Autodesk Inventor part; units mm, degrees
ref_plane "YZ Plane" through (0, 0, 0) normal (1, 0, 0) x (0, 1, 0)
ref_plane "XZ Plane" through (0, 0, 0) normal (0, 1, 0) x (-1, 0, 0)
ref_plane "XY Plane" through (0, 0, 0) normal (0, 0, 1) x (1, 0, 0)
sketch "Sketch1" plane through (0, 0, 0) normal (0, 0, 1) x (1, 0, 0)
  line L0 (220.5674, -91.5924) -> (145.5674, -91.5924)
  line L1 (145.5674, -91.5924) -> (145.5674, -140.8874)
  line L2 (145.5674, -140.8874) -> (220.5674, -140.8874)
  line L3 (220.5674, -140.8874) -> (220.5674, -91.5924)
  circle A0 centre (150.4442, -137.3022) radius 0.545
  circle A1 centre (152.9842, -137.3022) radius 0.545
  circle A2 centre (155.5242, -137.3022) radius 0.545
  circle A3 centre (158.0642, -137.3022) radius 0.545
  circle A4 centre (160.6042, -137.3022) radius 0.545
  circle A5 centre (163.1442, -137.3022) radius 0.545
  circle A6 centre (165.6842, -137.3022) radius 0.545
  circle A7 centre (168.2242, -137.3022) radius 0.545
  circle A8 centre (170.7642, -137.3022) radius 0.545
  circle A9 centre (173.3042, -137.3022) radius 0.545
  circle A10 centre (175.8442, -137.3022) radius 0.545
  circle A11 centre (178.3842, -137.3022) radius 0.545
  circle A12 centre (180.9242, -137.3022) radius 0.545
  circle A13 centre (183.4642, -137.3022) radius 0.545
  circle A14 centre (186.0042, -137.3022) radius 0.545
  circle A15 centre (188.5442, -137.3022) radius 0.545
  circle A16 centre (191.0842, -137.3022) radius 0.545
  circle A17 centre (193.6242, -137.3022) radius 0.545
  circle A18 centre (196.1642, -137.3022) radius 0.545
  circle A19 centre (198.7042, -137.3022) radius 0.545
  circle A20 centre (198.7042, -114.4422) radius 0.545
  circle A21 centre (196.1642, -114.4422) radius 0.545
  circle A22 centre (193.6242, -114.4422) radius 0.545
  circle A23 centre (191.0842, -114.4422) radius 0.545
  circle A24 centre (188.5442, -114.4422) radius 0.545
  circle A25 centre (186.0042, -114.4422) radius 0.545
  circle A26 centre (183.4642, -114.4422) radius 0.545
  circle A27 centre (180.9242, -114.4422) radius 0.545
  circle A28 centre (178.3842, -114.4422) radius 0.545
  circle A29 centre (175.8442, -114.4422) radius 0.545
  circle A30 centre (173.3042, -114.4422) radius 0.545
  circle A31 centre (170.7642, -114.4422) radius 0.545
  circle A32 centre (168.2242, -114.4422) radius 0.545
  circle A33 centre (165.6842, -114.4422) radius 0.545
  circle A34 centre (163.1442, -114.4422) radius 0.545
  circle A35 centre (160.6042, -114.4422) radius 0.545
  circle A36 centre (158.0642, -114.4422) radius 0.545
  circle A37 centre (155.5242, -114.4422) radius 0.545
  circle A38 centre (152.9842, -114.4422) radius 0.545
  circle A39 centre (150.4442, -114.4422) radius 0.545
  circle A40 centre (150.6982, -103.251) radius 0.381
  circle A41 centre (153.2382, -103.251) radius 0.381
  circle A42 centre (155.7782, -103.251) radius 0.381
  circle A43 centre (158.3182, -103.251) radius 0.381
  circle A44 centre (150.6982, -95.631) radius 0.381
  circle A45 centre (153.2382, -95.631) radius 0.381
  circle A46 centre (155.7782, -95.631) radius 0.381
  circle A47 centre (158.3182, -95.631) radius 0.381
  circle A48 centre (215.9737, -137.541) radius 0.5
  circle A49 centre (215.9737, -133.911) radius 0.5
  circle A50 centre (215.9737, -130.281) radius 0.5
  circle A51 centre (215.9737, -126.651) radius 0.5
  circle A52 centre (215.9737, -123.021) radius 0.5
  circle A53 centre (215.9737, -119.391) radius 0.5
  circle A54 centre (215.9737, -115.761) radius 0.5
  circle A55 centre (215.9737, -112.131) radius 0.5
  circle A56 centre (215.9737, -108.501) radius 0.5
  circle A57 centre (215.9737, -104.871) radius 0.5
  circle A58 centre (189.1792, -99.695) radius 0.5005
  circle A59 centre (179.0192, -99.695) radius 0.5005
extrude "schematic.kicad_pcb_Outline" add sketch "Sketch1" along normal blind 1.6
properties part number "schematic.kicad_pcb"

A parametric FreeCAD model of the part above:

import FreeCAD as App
import Part
import Sketcher

V = App.Vector
Q = App.Units.Quantity

doc = App.newDocument("Part")
params = doc.addObject("Spreadsheet::Sheet", "Params")
for row, (alias, value) in enumerate([
    ("sketch1_diameter", "1 mm"),
    ("sketch1_diameter2", "1.09 mm"),
    ("sketch1_width", "75 mm"),
    ("pad1_length", "1.6 mm"),
], start=1):
    params.set(f"A{row}", alias)
    params.set(f"B{row}", "=" + value)
    params.setAlias(f"B{row}", alias)

body = doc.addObject("PartDesign::Body", "Body")

# Sketch on XY plane
sketch1 = doc.addObject("Sketcher::SketchObject", "Sketch")
body.addObject(sketch1)
sketch1.AttachmentSupport = (doc.XY_Plane, [""])
sketch1.MapMode = "FlatFace"
sketch1.addGeometry([
    Part.LineSegment(V(220.57, -140.89, 0), V(220.57, -91.59, 0)),  # 0
    Part.LineSegment(V(220.57, -91.59, 0), V(145.57, -91.59, 0)),  # 1
    Part.LineSegment(V(145.57, -91.59, 0), V(145.57, -140.89, 0)),  # 2
    Part.LineSegment(V(145.57, -140.89, 0), V(220.57, -140.89, 0)),  # 3
    Part.Circle(V(150.44, -137.3, 0), V(0, 0, 1), 0.55),  # 4
    Part.Circle(V(152.98, -137.3, 0), V(0, 0, 1), 0.55),  # 5
    Part.Circle(V(155.52, -137.3, 0), V(0, 0, 1), 0.55),  # 6
    Part.Circle(V(158.06, -137.3, 0), V(0, 0, 1), 0.55),  # 7
    Part.Circle(V(160.6, -137.3, 0), V(0, 0, 1), 0.55),  # 8
    Part.Circle(V(163.14, -137.3, 0), V(0, 0, 1), 0.55),  # 9
    Part.Circle(V(165.68, -137.3, 0), V(0, 0, 1), 0.55),  # 10
    Part.Circle(V(168.22, -137.3, 0), V(0, 0, 1), 0.55),  # 11
    Part.Circle(V(170.76, -137.3, 0), V(0, 0, 1), 0.55),  # 12
    Part.Circle(V(173.3, -137.3, 0), V(0, 0, 1), 0.55),  # 13
    Part.Circle(V(175.84, -137.3, 0), V(0, 0, 1), 0.55),  # 14
    Part.Circle(V(178.38, -137.3, 0), V(0, 0, 1), 0.55),  # 15
    Part.Circle(V(180.92, -137.3, 0), V(0, 0, 1), 0.55),  # 16
    Part.Circle(V(183.46, -137.3, 0), V(0, 0, 1), 0.55),  # 17
    Part.Circle(V(186, -137.3, 0), V(0, 0, 1), 0.55),  # 18
    Part.Circle(V(188.54, -137.3, 0), V(0, 0, 1), 0.55),  # 19
    Part.Circle(V(191.08, -137.3, 0), V(0, 0, 1), 0.55),  # 20
    Part.Circle(V(193.62, -137.3, 0), V(0, 0, 1), 0.55),  # 21
    Part.Circle(V(196.16, -137.3, 0), V(0, 0, 1), 0.55),  # 22
    Part.Circle(V(198.7, -137.3, 0), V(0, 0, 1), 0.55),  # 23
    Part.Circle(V(215.97, -137.54, 0), V(0, 0, 1), 0.5),  # 24
    Part.Circle(V(215.97, -133.91, 0), V(0, 0, 1), 0.5),  # 25
    Part.Circle(V(215.97, -130.28, 0), V(0, 0, 1), 0.5),  # 26
    Part.Circle(V(215.97, -126.65, 0), V(0, 0, 1), 0.5),  # 27
    Part.Circle(V(215.97, -123.02, 0), V(0, 0, 1), 0.5),  # 28
    Part.Circle(V(215.97, -119.39, 0), V(0, 0, 1), 0.5),  # 29
    Part.Circle(V(150.44, -114.44, 0), V(0, 0, 1), 0.55),  # 30
    Part.Circle(V(152.98, -114.44, 0), V(0, 0, 1), 0.55),  # 31
    Part.Circle(V(155.52, -114.44, 0), V(0, 0, 1), 0.55),  # 32
    Part.Circle(V(158.06, -114.44, 0), V(0, 0, 1), 0.55),  # 33
    Part.Circle(V(160.6, -114.44, 0), V(0, 0, 1), 0.55),  # 34
    Part.Circle(V(163.14, -114.44, 0), V(0, 0, 1), 0.55),  # 35
    Part.Circle(V(165.68, -114.44, 0), V(0, 0, 1), 0.55),  # 36
    Part.Circle(V(168.22, -114.44, 0), V(0, 0, 1), 0.55),  # 37
    Part.Circle(V(170.76, -114.44, 0), V(0, 0, 1), 0.55),  # 38
    Part.Circle(V(173.3, -114.44, 0), V(0, 0, 1), 0.55),  # 39
    Part.Circle(V(175.84, -114.44, 0), V(0, 0, 1), 0.55),  # 40
    Part.Circle(V(178.38, -114.44, 0), V(0, 0, 1), 0.55),  # 41
    Part.Circle(V(180.92, -114.44, 0), V(0, 0, 1), 0.55),  # 42
    Part.Circle(V(150.7, -103.25, 0), V(0, 0, 1), 0.38),  # 43
    Part.Circle(V(153.24, -103.25, 0), V(0, 0, 1), 0.38),  # 44
    Part.Circle(V(155.78, -103.25, 0), V(0, 0, 1), 0.38),  # 45
    Part.Circle(V(158.32, -103.25, 0), V(0, 0, 1), 0.38),  # 46
    Part.Circle(V(150.7, -95.63, 0), V(0, 0, 1), 0.38),  # 47
    Part.Circle(V(153.24, -95.63, 0), V(0, 0, 1), 0.38),  # 48
    Part.Circle(V(155.78, -95.63, 0), V(0, 0, 1), 0.38),  # 49
    Part.Circle(V(158.32, -95.63, 0), V(0, 0, 1), 0.38),  # 50
    Part.Circle(V(179.02, -99.69, 0), V(0, 0, 1), 0.5),  # 51
    Part.Circle(V(183.46, -114.44, 0), V(0, 0, 1), 0.55),  # 52
    Part.Circle(V(186, -114.44, 0), V(0, 0, 1), 0.55),  # 53
    Part.Circle(V(188.54, -114.44, 0), V(0, 0, 1), 0.55),  # 54
    Part.Circle(V(191.08, -114.44, 0), V(0, 0, 1), 0.55),  # 55
    Part.Circle(V(193.62, -114.44, 0), V(0, 0, 1), 0.55),  # 56
    Part.Circle(V(196.16, -114.44, 0), V(0, 0, 1), 0.55),  # 57
    Part.Circle(V(198.7, -114.44, 0), V(0, 0, 1), 0.55),  # 58
    Part.Circle(V(215.97, -115.76, 0), V(0, 0, 1), 0.5),  # 59
    Part.Circle(V(215.97, -112.13, 0), V(0, 0, 1), 0.5),  # 60
    Part.Circle(V(215.97, -108.5, 0), V(0, 0, 1), 0.5),  # 61
    Part.Circle(V(215.97, -104.87, 0), V(0, 0, 1), 0.5),  # 62
    Part.Circle(V(189.18, -99.69, 0), V(0, 0, 1), 0.5),  # 63
], False)
sketch1.addConstraint([
    Sketcher.Constraint("Coincident", 0, 2, 1, 1),
    Sketcher.Constraint("Coincident", 1, 2, 2, 1),
    Sketcher.Constraint("Coincident", 2, 2, 3, 1),
    Sketcher.Constraint("Coincident", 3, 2, 0, 1),
    Sketcher.Constraint("Vertical", 0),
    Sketcher.Constraint("Horizontal", 1),
    Sketcher.Constraint("Vertical", 2),
    Sketcher.Constraint("Horizontal", 3),
    Sketcher.Constraint("Equal", 4, 5),
    Sketcher.Constraint("Equal", 5, 6),
    Sketcher.Constraint("Equal", 6, 7),
    Sketcher.Constraint("Equal", 7, 8),
    Sketcher.Constraint("Equal", 8, 9),
    Sketcher.Constraint("Equal", 9, 10),
    Sketcher.Constraint("Equal", 10, 11),
    Sketcher.Constraint("Equal", 11, 12),
    Sketcher.Constraint("Equal", 12, 13),
    Sketcher.Constraint("Equal", 13, 14),
    Sketcher.Constraint("Equal", 14, 15),
    Sketcher.Constraint("Equal", 15, 16),
    Sketcher.Constraint("Equal", 16, 17),
    Sketcher.Constraint("Equal", 17, 18),
    Sketcher.Constraint("Equal", 18, 19),
    Sketcher.Constraint("Equal", 19, 20),
    Sketcher.Constraint("Equal", 20, 21),
    Sketcher.Constraint("Equal", 21, 22),
    Sketcher.Constraint("Equal", 22, 23),
    Sketcher.Constraint("Equal", 24, 25),
    Sketcher.Constraint("Equal", 25, 26),
    Sketcher.Constraint("Equal", 26, 27),
    Sketcher.Constraint("Equal", 27, 28),
    Sketcher.Constraint("Equal", 28, 29),
    Sketcher.Constraint("Equal", 23, 30),
    Sketcher.Constraint("Equal", 30, 31),
    Sketcher.Constraint("Equal", 31, 32),
    Sketcher.Constraint("Equal", 32, 33),
    Sketcher.Constraint("Equal", 33, 34),
    Sketcher.Constraint("Equal", 34, 35),
    Sketcher.Constraint("Equal", 35, 36),
    Sketcher.Constraint("Equal", 36, 37),
    Sketcher.Constraint("Equal", 37, 38),
    Sketcher.Constraint("Equal", 38, 39),
    Sketcher.Constraint("Equal", 39, 40),
    Sketcher.Constraint("Equal", 40, 41),
    Sketcher.Constraint("Equal", 41, 42),
    Sketcher.Constraint("Equal", 43, 44),
    Sketcher.Constraint("Equal", 44, 45),
    Sketcher.Constraint("Equal", 45, 46),
    Sketcher.Constraint("Equal", 46, 47),
    Sketcher.Constraint("Equal", 47, 48),
    Sketcher.Constraint("Equal", 48, 49),
    Sketcher.Constraint("Equal", 49, 50),
    Sketcher.Constraint("Equal", 42, 52),
    Sketcher.Constraint("Equal", 52, 53),
    Sketcher.Constraint("Equal", 53, 54),
    Sketcher.Constraint("Equal", 54, 55),
    Sketcher.Constraint("Equal", 55, 56),
    Sketcher.Constraint("Equal", 56, 57),
    Sketcher.Constraint("Equal", 57, 58),
    Sketcher.Constraint("Equal", 29, 59),
    Sketcher.Constraint("Equal", 59, 60),
    Sketcher.Constraint("Equal", 60, 61),
    Sketcher.Constraint("Equal", 61, 62),
    Sketcher.Constraint("Equal", 51, 63),
    Sketcher.Constraint("Horizontal", 4, 3, 5, 3),
    Sketcher.Constraint("Horizontal", 5, 3, 6, 3),
    Sketcher.Constraint("Horizontal", 6, 3, 7, 3),
    Sketcher.Constraint("Horizontal", 7, 3, 8, 3),
    Sketcher.Constraint("Horizontal", 8, 3, 9, 3),
    Sketcher.Constraint("Horizontal", 9, 3, 10, 3),
    Sketcher.Constraint("Horizontal", 10, 3, 11, 3),
    Sketcher.Constraint("Horizontal", 11, 3, 12, 3),
    Sketcher.Constraint("Horizontal", 12, 3, 13, 3),
    Sketcher.Constraint("Horizontal", 13, 3, 14, 3),
    Sketcher.Constraint("Horizontal", 14, 3, 15, 3),
    Sketcher.Constraint("Horizontal", 15, 3, 16, 3),
    Sketcher.Constraint("Horizontal", 16, 3, 17, 3),
    Sketcher.Constraint("Horizontal", 17, 3, 18, 3),
    Sketcher.Constraint("Horizontal", 18, 3, 19, 3),
    Sketcher.Constraint("Horizontal", 19, 3, 20, 3),
    Sketcher.Constraint("Horizontal", 20, 3, 21, 3),
    Sketcher.Constraint("Horizontal", 21, 3, 22, 3),
    Sketcher.Constraint("Horizontal", 22, 3, 23, 3),
    Sketcher.Constraint("Horizontal", 30, 3, 31, 3),
    Sketcher.Constraint("Horizontal", 31, 3, 32, 3),
    Sketcher.Constraint("Horizontal", 32, 3, 33, 3),
    Sketcher.Constraint("Horizontal", 33, 3, 34, 3),
    Sketcher.Constraint("Horizontal", 34, 3, 35, 3),
    Sketcher.Constraint("Horizontal", 35, 3, 36, 3),
    Sketcher.Constraint("Horizontal", 36, 3, 37, 3),
    Sketcher.Constraint("Horizontal", 37, 3, 38, 3),
    Sketcher.Constraint("Horizontal", 38, 3, 39, 3),
    Sketcher.Constraint("Horizontal", 39, 3, 40, 3),
    Sketcher.Constraint("Horizontal", 40, 3, 41, 3),
    Sketcher.Constraint("Horizontal", 41, 3, 42, 3),
    Sketcher.Constraint("Horizontal", 43, 3, 44, 3),
    Sketcher.Constraint("Horizontal", 44, 3, 45, 3),
    Sketcher.Constraint("Horizontal", 45, 3, 46, 3),
    Sketcher.Constraint("Horizontal", 47, 3, 48, 3),
    Sketcher.Constraint("Horizontal", 48, 3, 49, 3),
    Sketcher.Constraint("Horizontal", 49, 3, 50, 3),
    Sketcher.Constraint("Horizontal", 42, 3, 52, 3),
    Sketcher.Constraint("Horizontal", 52, 3, 53, 3),
    Sketcher.Constraint("Horizontal", 53, 3, 54, 3),
    Sketcher.Constraint("Horizontal", 54, 3, 55, 3),
    Sketcher.Constraint("Horizontal", 55, 3, 56, 3),
    Sketcher.Constraint("Horizontal", 56, 3, 57, 3),
    Sketcher.Constraint("Horizontal", 57, 3, 58, 3),
    Sketcher.Constraint("Horizontal", 51, 3, 63, 3),
    Sketcher.Constraint("Vertical", 24, 3, 25, 3),
    Sketcher.Constraint("Vertical", 25, 3, 26, 3),
    Sketcher.Constraint("Vertical", 26, 3, 27, 3),
    Sketcher.Constraint("Vertical", 27, 3, 28, 3),
    Sketcher.Constraint("Vertical", 28, 3, 29, 3),
    Sketcher.Constraint("Vertical", 4, 3, 30, 3),
    Sketcher.Constraint("Vertical", 5, 3, 31, 3),
    Sketcher.Constraint("Vertical", 6, 3, 32, 3),
    Sketcher.Constraint("Vertical", 7, 3, 33, 3),
    Sketcher.Constraint("Vertical", 8, 3, 34, 3),
    Sketcher.Constraint("Vertical", 9, 3, 35, 3),
    Sketcher.Constraint("Vertical", 10, 3, 36, 3),
    Sketcher.Constraint("Vertical", 11, 3, 37, 3),
    Sketcher.Constraint("Vertical", 12, 3, 38, 3),
    Sketcher.Constraint("Vertical", 13, 3, 39, 3),
    Sketcher.Constraint("Vertical", 14, 3, 40, 3),
    Sketcher.Constraint("Vertical", 15, 3, 41, 3),
    Sketcher.Constraint("Vertical", 16, 3, 42, 3),
    Sketcher.Constraint("Vertical", 43, 3, 47, 3),
    Sketcher.Constraint("Vertical", 44, 3, 48, 3),
    Sketcher.Constraint("Vertical", 45, 3, 49, 3),
    Sketcher.Constraint("Vertical", 46, 3, 50, 3),
    Sketcher.Constraint("Vertical", 17, 3, 52, 3),
    Sketcher.Constraint("Vertical", 18, 3, 53, 3),
    Sketcher.Constraint("Vertical", 19, 3, 54, 3),
    Sketcher.Constraint("Vertical", 20, 3, 55, 3),
    Sketcher.Constraint("Vertical", 21, 3, 56, 3),
    Sketcher.Constraint("Vertical", 22, 3, 57, 3),
    Sketcher.Constraint("Vertical", 23, 3, 58, 3),
    Sketcher.Constraint("Vertical", 29, 3, 59, 3),
    Sketcher.Constraint("Vertical", 59, 3, 60, 3),
    Sketcher.Constraint("Vertical", 60, 3, 61, 3),
    Sketcher.Constraint("Vertical", 61, 3, 62, 3),
    Sketcher.Constraint("Diameter", 24, Q("1 mm")),
    Sketcher.Constraint("Diameter", 4, Q("1.09 mm")),
    Sketcher.Constraint("DistanceX", 1, 2, 1, 1, Q("75 mm")),
    Sketcher.Constraint("Diameter", 43, Q("0.762 mm")),
    Sketcher.Constraint("Diameter", 51, Q("1.001 mm")),
    Sketcher.Constraint("DistanceY", 0, 1, 0, 2, Q("49.295 mm")),
    Sketcher.Constraint("DistanceY", 24, 3, -1, 1, Q("137.541 mm")),
    Sketcher.Constraint("DistanceY", 25, 3, -1, 1, Q("133.911 mm")),
    Sketcher.Constraint("DistanceY", 26, 3, -1, 1, Q("130.281 mm")),
    Sketcher.Constraint("DistanceY", 27, 3, -1, 1, Q("126.651 mm")),
    Sketcher.Constraint("DistanceY", 28, 3, -1, 1, Q("123.021 mm")),
    Sketcher.Constraint("DistanceY", 29, 3, -1, 1, Q("119.391 mm")),
    Sketcher.Constraint("DistanceY", 43, 3, -1, 1, Q("103.251 mm")),
    Sketcher.Constraint("DistanceY", 47, 3, -1, 1, Q("95.631 mm")),
    Sketcher.Constraint("DistanceY", 51, 3, -1, 1, Q("99.695 mm")),
    Sketcher.Constraint("DistanceY", 59, 3, -1, 1, Q("115.761 mm")),
    Sketcher.Constraint("DistanceY", 60, 3, -1, 1, Q("112.131 mm")),
    Sketcher.Constraint("DistanceY", 61, 3, -1, 1, Q("108.501 mm")),
    Sketcher.Constraint("DistanceY", 62, 3, -1, 1, Q("104.871 mm")),
    Sketcher.Constraint("DistanceX", -1, 1, 4, 3, Q("150.4442 mm")),
    Sketcher.Constraint("DistanceY", 4, 3, -1, 1, Q("137.3022 mm")),
    Sketcher.Constraint("DistanceX", -1, 1, 5, 3, Q("152.9842 mm")),
    Sketcher.Constraint("DistanceX", -1, 1, 6, 3, Q("155.5242 mm")),
    Sketcher.Constraint("DistanceX", -1, 1, 7, 3, Q("158.0642 mm")),
    Sketcher.Constraint("DistanceX", -1, 1, 8, 3, Q("160.6042 mm")),
    Sketcher.Constraint("DistanceX", -1, 1, 9, 3, Q("163.1442 mm")),
    Sketcher.Constraint("DistanceX", -1, 1, 10, 3, Q("165.6842 mm")),
    Sketcher.Constraint("DistanceX", -1, 1, 11, 3, Q("168.2242 mm")),
    Sketcher.Constraint("DistanceX", -1, 1, 12, 3, Q("170.7642 mm")),
    Sketcher.Constraint("DistanceX", -1, 1, 13, 3, Q("173.3042 mm")),
    Sketcher.Constraint("DistanceX", -1, 1, 14, 3, Q("175.8442 mm")),
    Sketcher.Constraint("DistanceX", -1, 1, 15, 3, Q("178.3842 mm")),
    Sketcher.Constraint("DistanceX", -1, 1, 16, 3, Q("180.9242 mm")),
    Sketcher.Constraint("DistanceX", -1, 1, 17, 3, Q("183.4642 mm")),
    Sketcher.Constraint("DistanceX", -1, 1, 18, 3, Q("186.0042 mm")),
    Sketcher.Constraint("DistanceX", -1, 1, 19, 3, Q("188.5442 mm")),
    Sketcher.Constraint("DistanceX", -1, 1, 20, 3, Q("191.0842 mm")),
    Sketcher.Constraint("DistanceX", -1, 1, 21, 3, Q("193.6242 mm")),
    Sketcher.Constraint("DistanceX", -1, 1, 22, 3, Q("196.1642 mm")),
    Sketcher.Constraint("DistanceX", -1, 1, 23, 3, Q("198.7042 mm")),
    Sketcher.Constraint("DistanceX", -1, 1, 24, 3, Q("215.9737 mm")),
    Sketcher.Constraint("DistanceY", 30, 3, -1, 1, Q("114.4422 mm")),
    Sketcher.Constraint("DistanceX", -1, 1, 43, 3, Q("150.6982 mm")),
    Sketcher.Constraint("DistanceX", -1, 1, 44, 3, Q("153.2382 mm")),
    Sketcher.Constraint("DistanceX", -1, 1, 45, 3, Q("155.7782 mm")),
    Sketcher.Constraint("DistanceX", -1, 1, 46, 3, Q("158.3182 mm")),
    Sketcher.Constraint("DistanceX", -1, 1, 51, 3, Q("179.0192 mm")),
    Sketcher.Constraint("DistanceX", -1, 1, 63, 3, Q("189.1792 mm")),
    Sketcher.Constraint("DistanceX", -1, 1, 0, 2, Q("220.5674 mm")),
    Sketcher.Constraint("DistanceY", 0, 2, -1, 1, Q("91.5924 mm")),
])
sketch1.setExpression("Constraints[142]", "Params.sketch1_diameter")
sketch1.setExpression("Constraints[143]", "Params.sketch1_diameter2")
sketch1.setExpression("Constraints[144]", "Params.sketch1_width")
pad1 = doc.addObject("PartDesign::Pad", "Pad")
body.addObject(pad1)
pad1.Profile = sketch1
pad1.setExpression("Length", "Params.pad1_length")

doc.recompute()
